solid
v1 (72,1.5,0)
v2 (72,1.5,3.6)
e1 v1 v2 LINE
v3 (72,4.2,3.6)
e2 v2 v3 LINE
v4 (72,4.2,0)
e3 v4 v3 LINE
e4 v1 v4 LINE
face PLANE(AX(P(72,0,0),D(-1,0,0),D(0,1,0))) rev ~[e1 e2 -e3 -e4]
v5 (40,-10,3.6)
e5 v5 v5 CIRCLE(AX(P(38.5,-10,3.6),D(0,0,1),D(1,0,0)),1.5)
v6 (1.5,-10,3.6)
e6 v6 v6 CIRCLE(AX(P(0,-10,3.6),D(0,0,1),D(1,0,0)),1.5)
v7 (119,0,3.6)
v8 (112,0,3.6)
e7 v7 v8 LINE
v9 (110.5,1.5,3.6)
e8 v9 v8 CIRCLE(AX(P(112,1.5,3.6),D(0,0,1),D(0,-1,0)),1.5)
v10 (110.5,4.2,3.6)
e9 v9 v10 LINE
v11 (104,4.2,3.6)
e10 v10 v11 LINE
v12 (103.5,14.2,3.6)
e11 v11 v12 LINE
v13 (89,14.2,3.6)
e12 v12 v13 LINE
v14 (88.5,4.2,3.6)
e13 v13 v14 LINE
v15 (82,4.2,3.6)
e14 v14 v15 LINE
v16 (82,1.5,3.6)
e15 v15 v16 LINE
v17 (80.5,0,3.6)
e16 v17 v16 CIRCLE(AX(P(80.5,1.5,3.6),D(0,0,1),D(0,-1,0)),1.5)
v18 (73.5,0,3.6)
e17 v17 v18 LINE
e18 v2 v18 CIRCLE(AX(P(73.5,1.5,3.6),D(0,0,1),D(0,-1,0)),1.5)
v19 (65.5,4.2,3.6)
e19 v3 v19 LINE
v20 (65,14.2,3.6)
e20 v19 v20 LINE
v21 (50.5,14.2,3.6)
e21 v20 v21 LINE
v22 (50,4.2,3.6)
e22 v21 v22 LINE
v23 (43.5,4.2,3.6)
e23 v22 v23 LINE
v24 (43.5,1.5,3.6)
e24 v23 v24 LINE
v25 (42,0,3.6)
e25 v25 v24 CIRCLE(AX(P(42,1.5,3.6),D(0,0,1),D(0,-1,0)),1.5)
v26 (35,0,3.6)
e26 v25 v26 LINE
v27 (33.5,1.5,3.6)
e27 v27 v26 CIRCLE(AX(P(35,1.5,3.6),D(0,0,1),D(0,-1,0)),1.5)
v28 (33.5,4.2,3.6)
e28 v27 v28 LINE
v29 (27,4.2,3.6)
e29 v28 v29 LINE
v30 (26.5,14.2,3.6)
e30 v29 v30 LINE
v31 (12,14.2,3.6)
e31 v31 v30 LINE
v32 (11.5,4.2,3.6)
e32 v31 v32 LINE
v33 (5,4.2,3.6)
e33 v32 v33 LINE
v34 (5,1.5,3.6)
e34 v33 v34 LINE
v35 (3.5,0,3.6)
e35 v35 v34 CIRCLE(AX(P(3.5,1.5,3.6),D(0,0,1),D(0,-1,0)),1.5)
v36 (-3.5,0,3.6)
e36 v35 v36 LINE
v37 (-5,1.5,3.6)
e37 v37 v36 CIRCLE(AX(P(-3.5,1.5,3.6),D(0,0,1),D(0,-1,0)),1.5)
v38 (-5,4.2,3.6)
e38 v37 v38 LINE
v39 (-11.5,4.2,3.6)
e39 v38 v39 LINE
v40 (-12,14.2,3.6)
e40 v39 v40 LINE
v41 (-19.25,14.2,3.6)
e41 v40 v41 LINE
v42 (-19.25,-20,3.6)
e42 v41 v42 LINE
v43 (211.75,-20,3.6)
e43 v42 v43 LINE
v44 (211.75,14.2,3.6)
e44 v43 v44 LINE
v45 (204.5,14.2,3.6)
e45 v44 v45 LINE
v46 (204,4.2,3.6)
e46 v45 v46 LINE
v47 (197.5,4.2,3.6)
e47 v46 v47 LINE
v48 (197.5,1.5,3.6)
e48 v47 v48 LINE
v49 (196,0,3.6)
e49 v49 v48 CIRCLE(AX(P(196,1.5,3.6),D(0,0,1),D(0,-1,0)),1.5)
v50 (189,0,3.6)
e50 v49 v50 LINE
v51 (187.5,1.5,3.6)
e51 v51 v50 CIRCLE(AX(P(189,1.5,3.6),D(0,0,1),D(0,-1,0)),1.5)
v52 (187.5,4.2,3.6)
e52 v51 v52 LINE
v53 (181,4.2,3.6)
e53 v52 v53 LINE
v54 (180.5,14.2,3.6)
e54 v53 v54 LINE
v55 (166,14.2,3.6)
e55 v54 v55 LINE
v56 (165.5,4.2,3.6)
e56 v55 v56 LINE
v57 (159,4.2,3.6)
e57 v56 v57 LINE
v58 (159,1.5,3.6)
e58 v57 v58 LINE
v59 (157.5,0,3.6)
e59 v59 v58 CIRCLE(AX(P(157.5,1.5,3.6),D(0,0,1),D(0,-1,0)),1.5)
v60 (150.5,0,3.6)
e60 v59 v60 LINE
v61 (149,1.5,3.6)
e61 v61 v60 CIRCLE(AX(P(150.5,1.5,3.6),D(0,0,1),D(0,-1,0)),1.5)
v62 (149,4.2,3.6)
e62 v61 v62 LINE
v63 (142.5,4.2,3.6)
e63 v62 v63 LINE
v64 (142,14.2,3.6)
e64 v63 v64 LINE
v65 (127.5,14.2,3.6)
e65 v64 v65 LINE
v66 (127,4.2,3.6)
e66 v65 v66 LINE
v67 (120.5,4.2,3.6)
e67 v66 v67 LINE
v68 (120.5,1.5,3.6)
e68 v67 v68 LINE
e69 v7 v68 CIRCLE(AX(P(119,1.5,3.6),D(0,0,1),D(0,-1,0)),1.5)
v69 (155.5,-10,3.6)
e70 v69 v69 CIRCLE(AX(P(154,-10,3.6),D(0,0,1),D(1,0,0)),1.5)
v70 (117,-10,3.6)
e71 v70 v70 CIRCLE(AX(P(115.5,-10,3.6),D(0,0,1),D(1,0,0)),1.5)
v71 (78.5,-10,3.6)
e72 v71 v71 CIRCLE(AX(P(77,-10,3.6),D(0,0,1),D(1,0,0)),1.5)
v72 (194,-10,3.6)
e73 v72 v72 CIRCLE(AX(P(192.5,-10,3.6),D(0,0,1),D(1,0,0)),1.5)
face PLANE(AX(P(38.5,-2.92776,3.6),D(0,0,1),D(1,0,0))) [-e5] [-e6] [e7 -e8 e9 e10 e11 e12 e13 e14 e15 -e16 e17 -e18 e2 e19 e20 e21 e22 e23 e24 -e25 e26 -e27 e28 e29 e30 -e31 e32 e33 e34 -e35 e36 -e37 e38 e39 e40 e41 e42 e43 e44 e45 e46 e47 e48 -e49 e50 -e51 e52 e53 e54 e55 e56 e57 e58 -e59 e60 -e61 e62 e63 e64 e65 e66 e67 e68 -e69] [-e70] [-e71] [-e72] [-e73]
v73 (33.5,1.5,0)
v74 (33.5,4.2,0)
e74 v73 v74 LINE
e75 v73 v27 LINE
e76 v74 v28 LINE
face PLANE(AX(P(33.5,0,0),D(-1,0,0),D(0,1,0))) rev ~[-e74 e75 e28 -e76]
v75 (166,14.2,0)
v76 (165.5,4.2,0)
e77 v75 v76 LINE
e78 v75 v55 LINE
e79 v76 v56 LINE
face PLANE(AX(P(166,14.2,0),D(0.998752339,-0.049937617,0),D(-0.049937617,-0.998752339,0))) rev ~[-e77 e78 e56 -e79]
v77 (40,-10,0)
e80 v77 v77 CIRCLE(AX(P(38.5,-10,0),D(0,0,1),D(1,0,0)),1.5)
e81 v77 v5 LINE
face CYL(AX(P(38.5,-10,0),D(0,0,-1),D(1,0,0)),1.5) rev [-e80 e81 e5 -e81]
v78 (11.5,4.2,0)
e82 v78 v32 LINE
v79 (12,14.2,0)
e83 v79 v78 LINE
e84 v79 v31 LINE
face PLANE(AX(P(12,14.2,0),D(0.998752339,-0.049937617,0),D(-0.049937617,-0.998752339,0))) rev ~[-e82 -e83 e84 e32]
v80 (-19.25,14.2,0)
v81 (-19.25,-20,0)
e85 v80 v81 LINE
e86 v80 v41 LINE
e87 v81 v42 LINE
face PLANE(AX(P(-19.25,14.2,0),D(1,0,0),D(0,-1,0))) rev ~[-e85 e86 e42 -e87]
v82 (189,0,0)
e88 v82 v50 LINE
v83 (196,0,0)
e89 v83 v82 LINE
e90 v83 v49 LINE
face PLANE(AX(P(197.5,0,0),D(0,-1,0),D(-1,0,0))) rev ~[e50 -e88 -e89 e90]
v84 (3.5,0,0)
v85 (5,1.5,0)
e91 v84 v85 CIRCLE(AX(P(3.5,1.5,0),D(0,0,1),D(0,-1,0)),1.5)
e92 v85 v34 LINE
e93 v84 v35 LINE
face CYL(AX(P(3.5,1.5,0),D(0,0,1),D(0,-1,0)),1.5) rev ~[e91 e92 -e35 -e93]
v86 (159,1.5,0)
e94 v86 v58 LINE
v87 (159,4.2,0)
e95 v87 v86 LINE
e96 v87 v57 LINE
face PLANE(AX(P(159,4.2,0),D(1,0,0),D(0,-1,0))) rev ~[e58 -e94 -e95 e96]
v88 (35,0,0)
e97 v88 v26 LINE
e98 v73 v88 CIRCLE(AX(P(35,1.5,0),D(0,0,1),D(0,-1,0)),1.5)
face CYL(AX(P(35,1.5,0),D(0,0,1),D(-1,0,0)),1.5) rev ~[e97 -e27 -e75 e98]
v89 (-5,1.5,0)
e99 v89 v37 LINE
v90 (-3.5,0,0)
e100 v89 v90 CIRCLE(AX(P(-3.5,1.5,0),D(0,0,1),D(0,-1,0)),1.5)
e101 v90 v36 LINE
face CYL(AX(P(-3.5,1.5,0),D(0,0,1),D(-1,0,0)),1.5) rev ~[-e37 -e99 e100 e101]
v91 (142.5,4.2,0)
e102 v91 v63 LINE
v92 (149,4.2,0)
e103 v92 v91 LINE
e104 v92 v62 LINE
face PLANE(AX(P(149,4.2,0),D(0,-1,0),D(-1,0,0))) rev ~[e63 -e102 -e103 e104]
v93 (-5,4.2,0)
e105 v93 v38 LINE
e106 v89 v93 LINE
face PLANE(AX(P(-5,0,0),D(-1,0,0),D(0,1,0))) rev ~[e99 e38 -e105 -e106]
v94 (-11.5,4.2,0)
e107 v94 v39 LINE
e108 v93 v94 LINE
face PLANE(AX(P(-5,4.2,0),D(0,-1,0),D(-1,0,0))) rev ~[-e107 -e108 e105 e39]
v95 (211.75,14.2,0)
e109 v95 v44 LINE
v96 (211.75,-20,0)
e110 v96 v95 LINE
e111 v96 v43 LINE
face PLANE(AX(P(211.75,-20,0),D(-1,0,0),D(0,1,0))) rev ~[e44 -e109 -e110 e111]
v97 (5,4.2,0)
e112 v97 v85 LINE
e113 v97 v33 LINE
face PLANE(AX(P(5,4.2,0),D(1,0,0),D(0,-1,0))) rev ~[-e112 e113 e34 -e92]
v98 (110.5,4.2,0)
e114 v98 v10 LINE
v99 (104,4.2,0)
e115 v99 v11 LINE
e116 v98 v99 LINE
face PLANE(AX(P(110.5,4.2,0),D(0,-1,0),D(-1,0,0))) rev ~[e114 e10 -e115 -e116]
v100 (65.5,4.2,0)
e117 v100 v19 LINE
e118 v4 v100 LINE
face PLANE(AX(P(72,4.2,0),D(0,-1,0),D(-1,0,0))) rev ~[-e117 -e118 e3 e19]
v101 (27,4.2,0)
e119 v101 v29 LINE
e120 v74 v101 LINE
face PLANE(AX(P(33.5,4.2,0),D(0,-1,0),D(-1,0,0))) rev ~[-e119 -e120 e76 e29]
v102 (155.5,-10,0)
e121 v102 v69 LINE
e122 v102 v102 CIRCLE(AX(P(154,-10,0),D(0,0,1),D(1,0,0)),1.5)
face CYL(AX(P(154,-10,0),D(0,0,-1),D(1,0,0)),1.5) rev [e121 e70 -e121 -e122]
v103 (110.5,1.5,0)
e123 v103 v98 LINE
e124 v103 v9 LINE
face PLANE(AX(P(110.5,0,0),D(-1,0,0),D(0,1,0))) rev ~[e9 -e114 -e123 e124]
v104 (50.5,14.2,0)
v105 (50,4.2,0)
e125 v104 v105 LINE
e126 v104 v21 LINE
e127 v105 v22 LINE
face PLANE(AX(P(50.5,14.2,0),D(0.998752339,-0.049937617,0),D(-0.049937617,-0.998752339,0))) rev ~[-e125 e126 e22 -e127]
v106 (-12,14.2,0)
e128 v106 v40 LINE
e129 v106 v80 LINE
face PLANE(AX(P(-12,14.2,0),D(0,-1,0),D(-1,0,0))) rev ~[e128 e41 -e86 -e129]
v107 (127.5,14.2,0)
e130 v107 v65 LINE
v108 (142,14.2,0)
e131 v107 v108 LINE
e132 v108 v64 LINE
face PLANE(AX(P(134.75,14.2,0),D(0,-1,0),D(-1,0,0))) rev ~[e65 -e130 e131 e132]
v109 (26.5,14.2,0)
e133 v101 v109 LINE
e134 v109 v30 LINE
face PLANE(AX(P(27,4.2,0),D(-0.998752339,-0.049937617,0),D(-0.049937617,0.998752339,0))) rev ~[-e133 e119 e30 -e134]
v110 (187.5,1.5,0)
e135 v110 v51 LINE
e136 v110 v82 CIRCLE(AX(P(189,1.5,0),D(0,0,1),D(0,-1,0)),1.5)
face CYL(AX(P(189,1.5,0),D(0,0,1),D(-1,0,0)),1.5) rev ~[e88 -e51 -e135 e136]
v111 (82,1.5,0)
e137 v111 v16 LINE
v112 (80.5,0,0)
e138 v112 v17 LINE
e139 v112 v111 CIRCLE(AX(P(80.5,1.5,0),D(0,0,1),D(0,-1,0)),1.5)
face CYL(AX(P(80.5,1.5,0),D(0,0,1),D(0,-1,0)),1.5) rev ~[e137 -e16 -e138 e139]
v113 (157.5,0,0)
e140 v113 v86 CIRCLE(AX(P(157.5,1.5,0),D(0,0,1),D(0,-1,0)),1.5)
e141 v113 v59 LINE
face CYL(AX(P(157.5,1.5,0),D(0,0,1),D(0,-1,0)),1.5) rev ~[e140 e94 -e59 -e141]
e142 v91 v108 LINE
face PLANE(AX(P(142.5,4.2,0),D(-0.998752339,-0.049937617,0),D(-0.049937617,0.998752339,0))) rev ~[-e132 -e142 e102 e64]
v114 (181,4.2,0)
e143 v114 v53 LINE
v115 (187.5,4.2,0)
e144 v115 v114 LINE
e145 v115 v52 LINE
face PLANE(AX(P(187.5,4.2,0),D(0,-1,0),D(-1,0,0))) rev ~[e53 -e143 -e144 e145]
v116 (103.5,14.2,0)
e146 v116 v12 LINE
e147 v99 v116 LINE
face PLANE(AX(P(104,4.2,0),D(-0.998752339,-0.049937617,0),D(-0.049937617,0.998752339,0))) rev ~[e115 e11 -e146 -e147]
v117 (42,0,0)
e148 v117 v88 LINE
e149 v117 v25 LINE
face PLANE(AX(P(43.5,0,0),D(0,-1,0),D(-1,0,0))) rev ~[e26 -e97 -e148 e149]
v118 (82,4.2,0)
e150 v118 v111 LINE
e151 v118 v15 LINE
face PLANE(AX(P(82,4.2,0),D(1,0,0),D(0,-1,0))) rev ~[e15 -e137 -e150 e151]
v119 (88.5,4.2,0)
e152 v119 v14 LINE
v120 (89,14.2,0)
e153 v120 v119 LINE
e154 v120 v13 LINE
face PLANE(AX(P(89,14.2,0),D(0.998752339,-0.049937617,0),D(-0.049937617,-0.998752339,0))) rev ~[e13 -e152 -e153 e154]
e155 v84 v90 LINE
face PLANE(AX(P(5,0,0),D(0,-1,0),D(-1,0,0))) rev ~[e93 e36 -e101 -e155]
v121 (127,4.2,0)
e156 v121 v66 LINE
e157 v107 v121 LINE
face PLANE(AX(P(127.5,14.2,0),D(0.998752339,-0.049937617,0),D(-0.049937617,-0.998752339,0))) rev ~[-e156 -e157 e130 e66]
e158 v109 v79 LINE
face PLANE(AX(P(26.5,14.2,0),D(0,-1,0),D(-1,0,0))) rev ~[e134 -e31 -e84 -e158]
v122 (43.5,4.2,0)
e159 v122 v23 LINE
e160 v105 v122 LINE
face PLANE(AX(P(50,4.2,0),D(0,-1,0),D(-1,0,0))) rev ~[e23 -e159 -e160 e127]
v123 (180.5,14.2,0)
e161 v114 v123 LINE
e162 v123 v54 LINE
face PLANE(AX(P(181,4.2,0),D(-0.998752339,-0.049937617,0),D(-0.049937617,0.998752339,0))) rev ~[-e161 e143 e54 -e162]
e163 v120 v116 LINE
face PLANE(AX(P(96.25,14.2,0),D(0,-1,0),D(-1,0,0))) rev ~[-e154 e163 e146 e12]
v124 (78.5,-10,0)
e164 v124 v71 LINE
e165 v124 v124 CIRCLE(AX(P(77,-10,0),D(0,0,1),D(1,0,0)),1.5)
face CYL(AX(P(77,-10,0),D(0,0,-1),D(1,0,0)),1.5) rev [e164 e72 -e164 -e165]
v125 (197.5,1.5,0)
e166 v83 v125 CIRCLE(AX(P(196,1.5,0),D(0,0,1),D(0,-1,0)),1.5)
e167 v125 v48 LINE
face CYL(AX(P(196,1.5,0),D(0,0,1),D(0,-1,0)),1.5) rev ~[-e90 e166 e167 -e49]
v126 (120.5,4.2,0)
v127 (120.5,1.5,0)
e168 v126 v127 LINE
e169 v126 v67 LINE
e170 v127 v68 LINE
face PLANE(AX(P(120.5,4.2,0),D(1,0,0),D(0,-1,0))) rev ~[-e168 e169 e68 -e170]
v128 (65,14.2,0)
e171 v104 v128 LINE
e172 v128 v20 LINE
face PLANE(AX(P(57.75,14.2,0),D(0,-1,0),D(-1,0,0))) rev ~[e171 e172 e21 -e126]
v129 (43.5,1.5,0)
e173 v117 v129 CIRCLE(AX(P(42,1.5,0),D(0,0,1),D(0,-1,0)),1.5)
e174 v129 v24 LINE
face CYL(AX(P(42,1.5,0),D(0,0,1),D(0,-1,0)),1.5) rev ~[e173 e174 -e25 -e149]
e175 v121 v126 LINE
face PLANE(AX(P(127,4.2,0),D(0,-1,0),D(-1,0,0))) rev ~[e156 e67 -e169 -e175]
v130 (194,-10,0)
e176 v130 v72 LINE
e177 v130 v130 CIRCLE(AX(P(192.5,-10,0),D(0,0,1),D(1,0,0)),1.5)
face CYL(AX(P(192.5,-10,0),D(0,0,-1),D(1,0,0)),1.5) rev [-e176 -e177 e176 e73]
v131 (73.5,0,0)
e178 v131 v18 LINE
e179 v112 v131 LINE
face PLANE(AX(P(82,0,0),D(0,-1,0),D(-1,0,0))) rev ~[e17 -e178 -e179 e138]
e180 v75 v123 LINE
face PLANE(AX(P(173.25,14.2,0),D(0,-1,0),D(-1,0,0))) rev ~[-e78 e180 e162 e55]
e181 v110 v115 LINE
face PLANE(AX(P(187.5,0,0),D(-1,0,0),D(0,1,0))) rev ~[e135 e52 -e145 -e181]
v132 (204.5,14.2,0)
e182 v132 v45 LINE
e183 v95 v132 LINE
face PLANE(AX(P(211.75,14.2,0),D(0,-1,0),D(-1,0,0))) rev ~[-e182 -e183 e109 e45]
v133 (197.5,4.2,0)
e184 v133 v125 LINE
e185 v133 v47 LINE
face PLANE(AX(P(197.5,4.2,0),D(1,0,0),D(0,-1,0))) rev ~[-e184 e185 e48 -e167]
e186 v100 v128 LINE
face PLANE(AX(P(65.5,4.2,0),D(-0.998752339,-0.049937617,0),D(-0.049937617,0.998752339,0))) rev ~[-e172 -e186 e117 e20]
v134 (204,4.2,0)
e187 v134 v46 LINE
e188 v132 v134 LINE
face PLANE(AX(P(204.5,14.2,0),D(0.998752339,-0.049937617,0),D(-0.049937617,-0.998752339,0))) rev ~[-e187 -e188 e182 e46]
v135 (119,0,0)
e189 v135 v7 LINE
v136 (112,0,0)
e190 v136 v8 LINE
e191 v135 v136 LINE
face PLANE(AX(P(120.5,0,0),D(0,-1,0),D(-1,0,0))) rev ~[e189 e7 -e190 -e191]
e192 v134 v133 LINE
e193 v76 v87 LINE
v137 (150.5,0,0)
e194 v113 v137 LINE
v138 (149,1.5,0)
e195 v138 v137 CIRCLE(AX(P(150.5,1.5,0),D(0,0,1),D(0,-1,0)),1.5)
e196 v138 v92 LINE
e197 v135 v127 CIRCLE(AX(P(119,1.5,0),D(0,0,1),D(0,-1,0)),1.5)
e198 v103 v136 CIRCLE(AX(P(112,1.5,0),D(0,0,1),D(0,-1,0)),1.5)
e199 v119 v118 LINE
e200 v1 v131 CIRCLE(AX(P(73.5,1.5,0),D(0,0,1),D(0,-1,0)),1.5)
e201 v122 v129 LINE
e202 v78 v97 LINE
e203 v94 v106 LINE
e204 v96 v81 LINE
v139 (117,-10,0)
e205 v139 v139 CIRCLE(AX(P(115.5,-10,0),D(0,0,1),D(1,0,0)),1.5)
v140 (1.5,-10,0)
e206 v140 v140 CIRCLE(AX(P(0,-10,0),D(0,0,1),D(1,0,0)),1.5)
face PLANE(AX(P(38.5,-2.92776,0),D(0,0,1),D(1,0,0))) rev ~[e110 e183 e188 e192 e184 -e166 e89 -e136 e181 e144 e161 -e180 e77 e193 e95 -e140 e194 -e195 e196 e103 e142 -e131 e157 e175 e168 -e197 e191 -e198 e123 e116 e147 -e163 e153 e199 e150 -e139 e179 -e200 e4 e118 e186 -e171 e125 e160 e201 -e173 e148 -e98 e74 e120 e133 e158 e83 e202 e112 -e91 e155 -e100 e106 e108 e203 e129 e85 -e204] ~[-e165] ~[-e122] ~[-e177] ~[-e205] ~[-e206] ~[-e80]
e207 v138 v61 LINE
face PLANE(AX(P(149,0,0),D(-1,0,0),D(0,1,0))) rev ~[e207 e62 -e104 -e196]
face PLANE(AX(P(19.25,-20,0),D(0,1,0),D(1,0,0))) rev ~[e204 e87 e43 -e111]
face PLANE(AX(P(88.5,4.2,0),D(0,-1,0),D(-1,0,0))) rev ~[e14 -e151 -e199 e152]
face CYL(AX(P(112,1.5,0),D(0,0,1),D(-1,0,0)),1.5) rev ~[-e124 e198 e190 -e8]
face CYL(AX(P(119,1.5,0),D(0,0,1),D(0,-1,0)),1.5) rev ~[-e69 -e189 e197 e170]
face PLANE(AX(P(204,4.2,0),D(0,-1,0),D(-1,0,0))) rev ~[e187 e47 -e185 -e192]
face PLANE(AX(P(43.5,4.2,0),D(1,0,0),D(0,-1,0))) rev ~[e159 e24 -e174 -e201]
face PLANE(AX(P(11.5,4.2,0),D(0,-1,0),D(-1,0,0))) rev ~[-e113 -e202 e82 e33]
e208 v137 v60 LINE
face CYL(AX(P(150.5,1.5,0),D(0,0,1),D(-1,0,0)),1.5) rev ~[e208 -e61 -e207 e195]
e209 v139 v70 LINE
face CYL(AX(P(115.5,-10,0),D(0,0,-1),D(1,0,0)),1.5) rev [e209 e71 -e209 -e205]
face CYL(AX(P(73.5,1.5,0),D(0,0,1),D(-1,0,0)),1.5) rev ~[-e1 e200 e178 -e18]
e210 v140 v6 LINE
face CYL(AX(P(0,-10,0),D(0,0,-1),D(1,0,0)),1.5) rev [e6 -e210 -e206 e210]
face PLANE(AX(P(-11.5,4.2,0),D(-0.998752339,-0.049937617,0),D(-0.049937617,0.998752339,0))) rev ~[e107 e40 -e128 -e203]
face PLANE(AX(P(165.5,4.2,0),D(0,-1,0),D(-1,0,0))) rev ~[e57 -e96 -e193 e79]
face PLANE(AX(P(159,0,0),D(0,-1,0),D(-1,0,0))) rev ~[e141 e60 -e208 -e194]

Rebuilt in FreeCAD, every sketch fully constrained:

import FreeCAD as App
import Part
import Sketcher

V = App.Vector
Q = App.Units.Quantity


def edges_at(feature, points):
    """Names of the edges that pass closest to the given points."""
    edges = feature.Shape.Edges
    near = lambda p: min(range(len(edges)), key=lambda i: edges[i].distToShape(Part.Vertex(*p))[0])
    return sorted({f"Edge{near(p) + 1}" for p in points})

doc = App.newDocument("Part")
params = doc.addObject("Spreadsheet::Sheet", "Params")
for row, (alias, value) in enumerate([
    ("sketch1_diameter", "3 mm"),
    ("sketch1_width", "10 mm"),
    ("sketch1_width2", "38.5 mm"),
    ("sketch1_width3", "6.5 mm"),
    ("sketch1_height", "34.2 mm"),
    ("pad1_length", "3.6 mm"),
    ("fillet_radius", "1.5 mm"),
    ("linearpattern_pitch", "38.5 mm"),
    ("fillet2_radius", "1.5 mm"),
], start=1):
    params.set(f"A{row}", alias)
    params.set(f"B{row}", "=" + value)
    params.setAlias(f"B{row}", alias)

body = doc.addObject("PartDesign::Body", "Body")

# Sketch on XY plane
sketch1 = doc.addObject("Sketcher::SketchObject", "Sketch")
body.addObject(sketch1)
sketch1.AttachmentSupport = (doc.XY_Plane, [""])
sketch1.MapMode = "FlatFace"
sketch1.addGeometry(Part.LineSegment(V(-19.2, 14.2, 0), V(-19.2, -20, 0)), False)
sketch1.addGeometry(Part.LineSegment(V(-19.2, -20, 0), V(19.2, -20, 0)), False)
sketch1.addGeometry(Part.LineSegment(V(19.2, -20, 0), V(19.2, 14.2, 0)), False)
sketch1.addGeometry(Part.LineSegment(V(19.2, 14.2, 0), V(12, 14.2, 0)), False)
sketch1.addGeometry(Part.LineSegment(V(12, 14.2, 0), V(11.5, 4.2, 0)), False)
sketch1.addGeometry(Part.LineSegment(V(11.5, 4.2, 0), V(5, 4.2, 0)), False)
sketch1.addGeometry(Part.LineSegment(V(5, 4.2, 0), V(5, 0, 0)), False)
sketch1.addGeometry(Part.LineSegment(V(5, 0, 0), V(-5, 0, 0)), False)
sketch1.addGeometry(Part.LineSegment(V(-5, 0, 0), V(-5, 4.2, 0)), False)
sketch1.addGeometry(Part.LineSegment(V(-5, 4.2, 0), V(-11.5, 4.2, 0)), False)
sketch1.addGeometry(Part.LineSegment(V(-11.5, 4.2, 0), V(-12, 14.2, 0)), False)
sketch1.addGeometry(Part.LineSegment(V(-12, 14.2, 0), V(-19.2, 14.2, 0)), False)
sketch1.addGeometry(Part.Circle(V(0, -10, 0), V(0, 0, 1), 1.5), False)
sketch1.addConstraint(Sketcher.Constraint("Coincident", 0, 2, 1, 1))
sketch1.addConstraint(Sketcher.Constraint("Coincident", 1, 2, 2, 1))
sketch1.addConstraint(Sketcher.Constraint("Coincident", 2, 2, 3, 1))
sketch1.addConstraint(Sketcher.Constraint("Coincident", 3, 2, 4, 1))
sketch1.addConstraint(Sketcher.Constraint("Coincident", 4, 2, 5, 1))
sketch1.addConstraint(Sketcher.Constraint("Coincident", 5, 2, 6, 1))
sketch1.addConstraint(Sketcher.Constraint("Coincident", 6, 2, 7, 1))
sketch1.addConstraint(Sketcher.Constraint("Coincident", 7, 2, 8, 1))
sketch1.addConstraint(Sketcher.Constraint("Coincident", 8, 2, 9, 1))
sketch1.addConstraint(Sketcher.Constraint("Coincident", 9, 2, 10, 1))
sketch1.addConstraint(Sketcher.Constraint("Coincident", 10, 2, 11, 1))
sketch1.addConstraint(Sketcher.Constraint("Coincident", 11, 2, 0, 1))
sketch1.addConstraint(Sketcher.Constraint("Vertical", 0))
sketch1.addConstraint(Sketcher.Constraint("Horizontal", 1))
sketch1.addConstraint(Sketcher.Constraint("Vertical", 2))
sketch1.addConstraint(Sketcher.Constraint("Horizontal", 3))
sketch1.addConstraint(Sketcher.Constraint("Horizontal", 5))
sketch1.addConstraint(Sketcher.Constraint("Vertical", 6))
sketch1.addConstraint(Sketcher.Constraint("Horizontal", 7))
sketch1.addConstraint(Sketcher.Constraint("Vertical", 8))
sketch1.addConstraint(Sketcher.Constraint("Horizontal", 9))
sketch1.addConstraint(Sketcher.Constraint("Horizontal", 11))
sketch1.addConstraint(Sketcher.Constraint("Symmetric", 6, 2, 7, 2, -1, 1))
sketch1.addConstraint(Sketcher.Constraint("Symmetric", 4, 2, 9, 2, -2))
sketch1.addConstraint(Sketcher.Constraint("Symmetric", 3, 2, 10, 2, -2))
sketch1.addConstraint(Sketcher.Constraint("PointOnObject", 12, 3, -2))
sketch1.addConstraint(Sketcher.Constraint("Equal", 3, 11))
sketch1.addConstraint(Sketcher.Constraint("Diameter", 12, Q("3 mm")))
sketch1.addConstraint(Sketcher.Constraint("DistanceX", 7, 2, 7, 1, Q("10 mm")))
sketch1.addConstraint(Sketcher.Constraint("DistanceX", 1, 1, 1, 2, Q("38.5 mm")))
sketch1.addConstraint(Sketcher.Constraint("DistanceX", 5, 2, 5, 1, Q("6.5 mm")))
sketch1.addConstraint(Sketcher.Constraint("DistanceY", 0, 2, 0, 1, Q("34.2 mm")))
sketch1.addConstraint(Sketcher.Constraint("DistanceY", 6, 2, 6, 1, Q("4.2 mm")))
sketch1.addConstraint(Sketcher.Constraint("DistanceY", 12, 3, -1, 1, Q("10 mm")))
sketch1.addConstraint(Sketcher.Constraint("DistanceY", 0, 2, -1, 1, Q("20 mm")))
sketch1.addConstraint(Sketcher.Constraint("DistanceX", -1, 1, 3, 2, Q("12 mm")))
sketch1.setExpression("Constraints[27]", "Params.sketch1_diameter")
sketch1.setExpression("Constraints[28]", "Params.sketch1_width")
sketch1.setExpression("Constraints[29]", "Params.sketch1_width2")
sketch1.setExpression("Constraints[30]", "Params.sketch1_width3")
sketch1.setExpression("Constraints[31]", "Params.sketch1_height")
pad1 = doc.addObject("PartDesign::Pad", "Pad")
body.addObject(pad1)
pad1.Profile = sketch1
pad1.setExpression("Length", "Params.pad1_length")
doc.recompute()

fillet = doc.addObject("PartDesign::Fillet", "Fillet")
body.addObject(fillet)
fillet.Base = (pad1, edges_at(pad1, [(-5, 0, 1.8), (5, 0, 1.8)]))
fillet.setExpression("Radius", "Params.fillet_radius")
doc.recompute()

linearpattern = doc.addObject("PartDesign::LinearPattern", "LinearPattern")
body.addObject(linearpattern)
linearpattern.Originals = [pad1]
linearpattern.Direction = (doc.X_Axis, [""])
linearpattern.Mode = "offset"
linearpattern.setExpression("Offset", "Params.linearpattern_pitch")
linearpattern.Occurrences = 6
body.Tip = linearpattern
doc.recompute()

fillet2 = doc.addObject("PartDesign::Fillet", "Fillet001")
body.addObject(fillet2)
fillet2.Base = (linearpattern, edges_at(linearpattern, [
    (33.5, 0, 1.8),
    (43.5, 0, 1.8),
    (72, 0, 1.8),
    (82, 0, 1.8),
    (110.5, 0, 1.8),
    (120.5, 0, 1.8),
    (149, 0, 1.8),
    (159, 0, 1.8),
    (187.5, 0, 1.8),
    (197.5, 0, 1.8),
]))
fillet2.setExpression("Radius", "Params.fillet2_radius")

doc.recompute()
